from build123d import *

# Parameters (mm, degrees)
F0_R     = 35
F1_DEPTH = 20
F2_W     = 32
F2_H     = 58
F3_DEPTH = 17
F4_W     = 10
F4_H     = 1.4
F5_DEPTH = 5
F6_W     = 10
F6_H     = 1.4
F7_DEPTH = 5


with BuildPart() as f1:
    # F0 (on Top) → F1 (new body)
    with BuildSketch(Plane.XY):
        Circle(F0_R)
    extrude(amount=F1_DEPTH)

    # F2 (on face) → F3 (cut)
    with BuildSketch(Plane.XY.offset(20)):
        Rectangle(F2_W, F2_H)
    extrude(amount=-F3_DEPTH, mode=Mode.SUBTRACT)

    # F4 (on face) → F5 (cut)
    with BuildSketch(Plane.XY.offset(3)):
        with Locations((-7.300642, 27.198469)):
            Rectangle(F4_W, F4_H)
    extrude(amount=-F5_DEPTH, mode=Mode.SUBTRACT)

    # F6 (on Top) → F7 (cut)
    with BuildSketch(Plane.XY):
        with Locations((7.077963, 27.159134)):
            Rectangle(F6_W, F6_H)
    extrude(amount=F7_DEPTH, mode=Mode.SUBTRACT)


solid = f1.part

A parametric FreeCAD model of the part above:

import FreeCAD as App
import Part
import Sketcher
from FreeCAD import Vector
Q = App.Units.Quantity

doc = App.newDocument("Part")
body = doc.addObject("PartDesign::Body", "Body")

sketch1 = body.newObject("Sketcher::SketchObject", "Sketch")
sketch1.AttachmentSupport = (doc.getObject("XY_Plane"), [""])
sketch1.MapMode = "FlatFace"
sketch1.addGeometry(Part.Circle(Vector(0, 0, 0), Vector(0, 0, 1), 35), False)
sketch1.addConstraint(Sketcher.Constraint("Coincident", 0, 3, -1, 1))
sketch1.addConstraint(Sketcher.Constraint("Diameter", 0, Q("70 mm")))
pad1 = body.newObject("PartDesign::Pad", "Pad")
pad1.Profile = sketch1
pad1.Length = 20

sketch2 = body.newObject("Sketcher::SketchObject", "Sketch001")
sketch2.AttachmentSupport = (doc.getObject("XY_Plane"), [""])
sketch2.MapMode = "FlatFace"
sketch2.AttachmentOffset = App.Placement(Vector(0, 0, 20), App.Rotation())
sketch2.addGeometry(Part.LineSegment(Vector(-16, 29, 0), Vector(-16, -29, 0)), False)
sketch2.addGeometry(Part.LineSegment(Vector(-16, -29, 0), Vector(16, -29, 0)), False)
sketch2.addGeometry(Part.LineSegment(Vector(16, -29, 0), Vector(16, 29, 0)), False)
sketch2.addGeometry(Part.LineSegment(Vector(16, 29, 0), Vector(-16, 29, 0)), False)
sketch2.addConstraint(Sketcher.Constraint("Coincident", 0, 2, 1, 1))
sketch2.addConstraint(Sketcher.Constraint("Coincident", 1, 2, 2, 1))
sketch2.addConstraint(Sketcher.Constraint("Coincident", 2, 2, 3, 1))
sketch2.addConstraint(Sketcher.Constraint("Coincident", 3, 2, 0, 1))
sketch2.addConstraint(Sketcher.Constraint("Vertical", 0))
sketch2.addConstraint(Sketcher.Constraint("Horizontal", 1))
sketch2.addConstraint(Sketcher.Constraint("Vertical", 2))
sketch2.addConstraint(Sketcher.Constraint("Horizontal", 3))
sketch2.addConstraint(Sketcher.Constraint("Symmetric", 0, 2, 2, 2, -1, 1))
sketch2.addConstraint(Sketcher.Constraint("DistanceX", 1, 1, 1, 2, Q("32 mm")))
sketch2.addConstraint(Sketcher.Constraint("DistanceY", 0, 2, 0, 1, Q("58 mm")))
pocket1 = body.newObject("PartDesign::Pocket", "Pocket")
pocket1.Profile = sketch2
pocket1.Length = 17

sketch3 = body.newObject("Sketcher::SketchObject", "Sketch002")
sketch3.AttachmentSupport = (doc.getObject("XY_Plane"), [""])
sketch3.MapMode = "FlatFace"
sketch3.AttachmentOffset = App.Placement(Vector(0, 0, 3), App.Rotation())
sketch3.addGeometry(Part.LineSegment(Vector(-12.3, 27.9, 0), Vector(-12.3, 26.5, 0)), False)
sketch3.addGeometry(Part.LineSegment(Vector(-12.3, 26.5, 0), Vector(-2.3, 26.5, 0)), False)
sketch3.addGeometry(Part.LineSegment(Vector(-2.3, 26.5, 0), Vector(-2.3, 27.9, 0)), False)
sketch3.addGeometry(Part.LineSegment(Vector(-2.3, 27.9, 0), Vector(-12.3, 27.9, 0)), False)
sketch3.addConstraint(Sketcher.Constraint("Coincident", 0, 2, 1, 1))
sketch3.addConstraint(Sketcher.Constraint("Coincident", 1, 2, 2, 1))
sketch3.addConstraint(Sketcher.Constraint("Coincident", 2, 2, 3, 1))
sketch3.addConstraint(Sketcher.Constraint("Coincident", 3, 2, 0, 1))
sketch3.addConstraint(Sketcher.Constraint("Vertical", 0))
sketch3.addConstraint(Sketcher.Constraint("Horizontal", 1))
sketch3.addConstraint(Sketcher.Constraint("Vertical", 2))
sketch3.addConstraint(Sketcher.Constraint("Horizontal", 3))
sketch3.addConstraint(Sketcher.Constraint("DistanceX", 1, 1, 1, 2, Q("10 mm")))
sketch3.addConstraint(Sketcher.Constraint("DistanceY", 0, 2, 0, 1, Q("1.4 mm")))
sketch3.addConstraint(Sketcher.Constraint("DistanceY", -1, 1, 0, 2, Q("26.498469 mm")))
sketch3.addConstraint(Sketcher.Constraint("DistanceX", 1, 2, -1, 1, Q("2.300642 mm")))
pocket2 = body.newObject("PartDesign::Pocket", "Pocket001")
pocket2.Profile = sketch3
pocket2.Length = 5

sketch4 = body.newObject("Sketcher::SketchObject", "Sketch003")
sketch4.AttachmentSupport = (doc.getObject("XY_Plane"), [""])
sketch4.MapMode = "FlatFace"
sketch4.addGeometry(Part.LineSegment(Vector(2.1, 27.9, 0), Vector(2.1, 26.5, 0)), False)
sketch4.addGeometry(Part.LineSegment(Vector(2.1, 26.5, 0), Vector(12.1, 26.5, 0)), False)
sketch4.addGeometry(Part.LineSegment(Vector(12.1, 26.5, 0), Vector(12.1, 27.9, 0)), False)
sketch4.addGeometry(Part.LineSegment(Vector(12.1, 27.9, 0), Vector(2.1, 27.9, 0)), False)
sketch4.addConstraint(Sketcher.Constraint("Coincident", 0, 2, 1, 1))
sketch4.addConstraint(Sketcher.Constraint("Coincident", 1, 2, 2, 1))
sketch4.addConstraint(Sketcher.Constraint("Coincident", 2, 2, 3, 1))
sketch4.addConstraint(Sketcher.Constraint("Coincident", 3, 2, 0, 1))
sketch4.addConstraint(Sketcher.Constraint("Vertical", 0))
sketch4.addConstraint(Sketcher.Constraint("Horizontal", 1))
sketch4.addConstraint(Sketcher.Constraint("Vertical", 2))
sketch4.addConstraint(Sketcher.Constraint("Horizontal", 3))
sketch4.addConstraint(Sketcher.Constraint("DistanceX", 1, 1, 1, 2, Q("10 mm")))
sketch4.addConstraint(Sketcher.Constraint("DistanceY", 0, 2, 0, 1, Q("1.4 mm")))
sketch4.addConstraint(Sketcher.Constraint("DistanceX", -1, 1, 0, 2, Q("2.077963 mm")))
sketch4.addConstraint(Sketcher.Constraint("DistanceY", -1, 1, 0, 2, Q("26.459134 mm")))
pocket3 = body.newObject("PartDesign::Pocket", "Pocket002")
pocket3.Profile = sketch4
pocket3.Length = 5
pocket3.Reversed = True

doc.recompute()
